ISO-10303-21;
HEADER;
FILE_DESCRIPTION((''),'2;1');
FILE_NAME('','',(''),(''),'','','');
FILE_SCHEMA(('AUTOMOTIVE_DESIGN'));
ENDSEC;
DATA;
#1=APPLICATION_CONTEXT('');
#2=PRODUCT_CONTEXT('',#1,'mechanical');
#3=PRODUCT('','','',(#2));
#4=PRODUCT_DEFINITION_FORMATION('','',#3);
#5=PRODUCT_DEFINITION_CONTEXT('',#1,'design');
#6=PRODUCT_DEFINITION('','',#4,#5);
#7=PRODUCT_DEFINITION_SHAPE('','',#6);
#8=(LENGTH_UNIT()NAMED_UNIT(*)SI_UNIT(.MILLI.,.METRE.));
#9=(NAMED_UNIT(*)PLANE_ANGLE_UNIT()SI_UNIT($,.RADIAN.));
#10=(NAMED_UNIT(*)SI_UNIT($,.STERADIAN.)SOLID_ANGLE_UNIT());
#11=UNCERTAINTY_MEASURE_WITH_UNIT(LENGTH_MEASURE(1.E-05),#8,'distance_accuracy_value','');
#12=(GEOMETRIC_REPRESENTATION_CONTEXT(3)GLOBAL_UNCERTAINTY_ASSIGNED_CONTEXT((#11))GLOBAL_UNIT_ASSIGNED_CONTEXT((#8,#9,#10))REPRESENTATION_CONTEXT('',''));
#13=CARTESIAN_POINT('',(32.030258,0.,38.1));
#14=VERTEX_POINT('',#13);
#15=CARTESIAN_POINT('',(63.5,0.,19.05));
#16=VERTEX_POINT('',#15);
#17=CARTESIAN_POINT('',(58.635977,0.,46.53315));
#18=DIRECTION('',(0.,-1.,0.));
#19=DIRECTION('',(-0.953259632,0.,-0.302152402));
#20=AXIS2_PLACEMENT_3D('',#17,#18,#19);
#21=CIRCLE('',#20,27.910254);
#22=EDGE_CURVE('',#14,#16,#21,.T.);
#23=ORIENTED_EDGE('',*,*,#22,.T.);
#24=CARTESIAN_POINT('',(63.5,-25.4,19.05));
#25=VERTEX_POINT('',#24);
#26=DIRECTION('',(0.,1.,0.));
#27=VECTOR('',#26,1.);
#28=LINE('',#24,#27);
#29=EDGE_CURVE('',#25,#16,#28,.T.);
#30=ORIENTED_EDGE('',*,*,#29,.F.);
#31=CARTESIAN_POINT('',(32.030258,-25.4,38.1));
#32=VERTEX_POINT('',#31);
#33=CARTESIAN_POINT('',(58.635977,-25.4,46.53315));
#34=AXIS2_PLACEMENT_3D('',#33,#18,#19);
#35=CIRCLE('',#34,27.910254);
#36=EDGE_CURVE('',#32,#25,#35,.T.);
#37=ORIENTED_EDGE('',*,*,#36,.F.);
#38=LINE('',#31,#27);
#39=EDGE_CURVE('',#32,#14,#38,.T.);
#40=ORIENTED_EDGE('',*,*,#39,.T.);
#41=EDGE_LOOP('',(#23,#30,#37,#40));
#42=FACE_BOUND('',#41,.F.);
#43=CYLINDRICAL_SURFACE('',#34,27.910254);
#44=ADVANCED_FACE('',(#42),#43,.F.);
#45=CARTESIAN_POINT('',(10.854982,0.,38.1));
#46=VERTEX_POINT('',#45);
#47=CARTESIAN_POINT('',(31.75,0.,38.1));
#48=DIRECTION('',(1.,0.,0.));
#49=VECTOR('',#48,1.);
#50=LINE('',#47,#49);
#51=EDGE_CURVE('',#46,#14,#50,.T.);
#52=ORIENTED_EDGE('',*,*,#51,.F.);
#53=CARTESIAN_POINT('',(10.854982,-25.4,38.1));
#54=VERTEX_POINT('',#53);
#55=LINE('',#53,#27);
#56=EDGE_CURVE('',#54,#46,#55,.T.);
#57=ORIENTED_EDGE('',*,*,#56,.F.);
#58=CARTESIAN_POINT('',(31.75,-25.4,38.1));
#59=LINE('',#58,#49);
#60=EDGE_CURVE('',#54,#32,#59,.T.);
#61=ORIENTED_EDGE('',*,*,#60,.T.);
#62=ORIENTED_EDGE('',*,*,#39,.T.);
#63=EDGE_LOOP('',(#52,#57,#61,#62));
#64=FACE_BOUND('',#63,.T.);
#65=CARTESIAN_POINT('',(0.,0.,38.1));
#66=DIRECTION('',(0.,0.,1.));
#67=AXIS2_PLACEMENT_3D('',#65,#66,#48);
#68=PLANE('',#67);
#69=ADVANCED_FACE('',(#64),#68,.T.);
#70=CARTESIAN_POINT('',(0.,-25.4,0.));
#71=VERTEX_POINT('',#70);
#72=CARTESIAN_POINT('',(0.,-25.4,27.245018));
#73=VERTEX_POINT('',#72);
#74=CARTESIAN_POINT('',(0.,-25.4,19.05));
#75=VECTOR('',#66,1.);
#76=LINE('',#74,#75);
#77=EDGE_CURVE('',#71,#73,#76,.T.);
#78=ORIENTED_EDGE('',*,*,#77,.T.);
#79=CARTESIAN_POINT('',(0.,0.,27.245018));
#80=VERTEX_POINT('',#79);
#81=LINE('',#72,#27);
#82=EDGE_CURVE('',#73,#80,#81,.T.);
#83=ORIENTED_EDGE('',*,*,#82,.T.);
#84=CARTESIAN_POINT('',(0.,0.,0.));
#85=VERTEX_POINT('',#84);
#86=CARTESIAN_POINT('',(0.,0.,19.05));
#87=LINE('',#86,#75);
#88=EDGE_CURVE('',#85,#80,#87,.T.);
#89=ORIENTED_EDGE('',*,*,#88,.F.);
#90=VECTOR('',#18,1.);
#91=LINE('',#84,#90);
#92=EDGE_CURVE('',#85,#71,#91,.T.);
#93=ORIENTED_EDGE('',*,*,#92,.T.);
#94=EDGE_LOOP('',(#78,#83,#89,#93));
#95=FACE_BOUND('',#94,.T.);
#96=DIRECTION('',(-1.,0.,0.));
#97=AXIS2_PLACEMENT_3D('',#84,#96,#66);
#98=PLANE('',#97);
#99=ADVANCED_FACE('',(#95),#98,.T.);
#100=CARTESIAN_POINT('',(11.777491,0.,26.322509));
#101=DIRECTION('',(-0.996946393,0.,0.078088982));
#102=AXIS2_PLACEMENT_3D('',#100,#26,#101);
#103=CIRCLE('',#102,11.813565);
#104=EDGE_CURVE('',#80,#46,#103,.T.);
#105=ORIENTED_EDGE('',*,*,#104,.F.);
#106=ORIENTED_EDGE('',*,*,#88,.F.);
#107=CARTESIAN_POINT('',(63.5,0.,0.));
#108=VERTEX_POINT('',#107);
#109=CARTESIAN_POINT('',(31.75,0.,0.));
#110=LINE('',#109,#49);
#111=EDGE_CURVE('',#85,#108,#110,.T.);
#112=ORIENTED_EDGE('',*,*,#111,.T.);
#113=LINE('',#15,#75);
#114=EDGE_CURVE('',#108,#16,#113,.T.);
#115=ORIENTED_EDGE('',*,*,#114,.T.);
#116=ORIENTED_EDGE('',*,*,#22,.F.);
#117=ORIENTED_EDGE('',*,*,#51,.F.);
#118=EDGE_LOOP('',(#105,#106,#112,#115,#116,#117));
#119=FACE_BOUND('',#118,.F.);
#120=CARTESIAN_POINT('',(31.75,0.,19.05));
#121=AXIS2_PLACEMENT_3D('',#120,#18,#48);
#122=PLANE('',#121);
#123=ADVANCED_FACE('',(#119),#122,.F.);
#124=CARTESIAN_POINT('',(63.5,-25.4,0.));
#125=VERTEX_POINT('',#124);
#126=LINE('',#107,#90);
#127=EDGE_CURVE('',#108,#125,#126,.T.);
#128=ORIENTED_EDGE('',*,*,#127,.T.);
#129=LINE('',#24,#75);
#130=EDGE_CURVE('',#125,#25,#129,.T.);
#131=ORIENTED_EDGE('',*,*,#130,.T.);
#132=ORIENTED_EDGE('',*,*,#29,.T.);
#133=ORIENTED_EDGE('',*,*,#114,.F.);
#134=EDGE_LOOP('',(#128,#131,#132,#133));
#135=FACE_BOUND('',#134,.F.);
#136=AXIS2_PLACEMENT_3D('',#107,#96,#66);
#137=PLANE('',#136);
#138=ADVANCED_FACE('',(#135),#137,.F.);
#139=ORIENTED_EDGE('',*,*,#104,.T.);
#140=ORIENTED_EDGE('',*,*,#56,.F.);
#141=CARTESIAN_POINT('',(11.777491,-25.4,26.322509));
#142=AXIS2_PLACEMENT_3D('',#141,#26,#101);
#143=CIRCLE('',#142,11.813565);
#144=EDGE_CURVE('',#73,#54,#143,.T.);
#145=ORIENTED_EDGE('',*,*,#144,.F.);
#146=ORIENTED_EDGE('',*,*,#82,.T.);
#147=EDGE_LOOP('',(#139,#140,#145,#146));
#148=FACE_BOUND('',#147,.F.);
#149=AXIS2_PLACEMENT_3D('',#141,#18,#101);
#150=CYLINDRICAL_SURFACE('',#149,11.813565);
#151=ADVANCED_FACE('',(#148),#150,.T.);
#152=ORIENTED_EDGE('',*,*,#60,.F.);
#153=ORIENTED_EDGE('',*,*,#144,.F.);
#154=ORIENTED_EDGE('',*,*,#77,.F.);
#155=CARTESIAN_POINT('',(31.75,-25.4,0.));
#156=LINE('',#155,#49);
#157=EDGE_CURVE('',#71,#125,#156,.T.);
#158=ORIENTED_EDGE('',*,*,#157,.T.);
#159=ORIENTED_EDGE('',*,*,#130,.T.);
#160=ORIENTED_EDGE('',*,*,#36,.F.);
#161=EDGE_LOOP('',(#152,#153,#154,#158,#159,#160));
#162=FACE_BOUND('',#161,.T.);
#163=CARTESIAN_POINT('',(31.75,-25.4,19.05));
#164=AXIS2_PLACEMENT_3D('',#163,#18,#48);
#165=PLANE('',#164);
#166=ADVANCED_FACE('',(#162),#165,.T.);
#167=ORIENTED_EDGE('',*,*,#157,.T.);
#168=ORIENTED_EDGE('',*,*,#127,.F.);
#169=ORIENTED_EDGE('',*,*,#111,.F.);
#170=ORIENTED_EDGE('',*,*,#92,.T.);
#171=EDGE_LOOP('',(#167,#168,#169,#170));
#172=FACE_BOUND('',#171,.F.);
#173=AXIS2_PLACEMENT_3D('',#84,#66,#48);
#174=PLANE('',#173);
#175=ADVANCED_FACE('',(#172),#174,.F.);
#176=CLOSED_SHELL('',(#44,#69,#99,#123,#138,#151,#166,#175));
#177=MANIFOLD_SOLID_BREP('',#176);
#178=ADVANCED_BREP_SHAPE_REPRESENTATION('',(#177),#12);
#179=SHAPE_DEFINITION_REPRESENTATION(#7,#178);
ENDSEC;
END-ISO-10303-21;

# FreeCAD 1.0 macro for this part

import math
import FreeCAD as App
import Part
import Sketcher

V = App.Vector
Q = App.Units.Quantity

doc = App.newDocument("Part")
body = doc.addObject("PartDesign::Body", "Body")

# Sketch on XZ plane
sketch1 = body.newObject("Sketcher::SketchObject", "Sketch")
sketch1.AttachmentSupport = (doc.getObject("XZ_Plane"), [""])
sketch1.MapMode = "FlatFace"
sketch1.addGeometry([
    Part.LineSegment(V(0, 38, 0), V(0, 0, 0)),
    Part.LineSegment(V(0, 0, 0), V(64, 0, 0)),
    Part.LineSegment(V(64, 0, 0), V(64, 38, 0)),
    Part.LineSegment(V(64, 38, 0), V(0, 38, 0)),
], False)
sketch1.addConstraint([
    Sketcher.Constraint("Coincident", 0, 2, 1, 1),
    Sketcher.Constraint("Coincident", 1, 2, 2, 1),
    Sketcher.Constraint("Coincident", 2, 2, 3, 1),
    Sketcher.Constraint("Coincident", 3, 2, 0, 1),
    Sketcher.Constraint("Vertical", 0),
    Sketcher.Constraint("Horizontal", 1),
    Sketcher.Constraint("Vertical", 2),
    Sketcher.Constraint("Horizontal", 3),
    Sketcher.Constraint("Coincident", 0, 2, -1, 1),
    Sketcher.Constraint("DistanceX", 1, 1, 1, 2, Q("2.5 in")),
    Sketcher.Constraint("DistanceY", 0, 2, 0, 1, Q("1.5 in")),
])
pad1 = body.newObject("PartDesign::Pad", "Pad")
pad1.Profile = sketch1
pad1.Length = Q("1 in")

# Sketch on XZ plane
sketch2 = body.newObject("Sketcher::SketchObject", "Sketch001")
sketch2.AttachmentSupport = (doc.getObject("XZ_Plane"), [""])
sketch2.MapMode = "FlatFace"
sketch2.AttachmentOffset = App.Placement(V(0, 0, 1 * 25.4), App.Rotation())
sketch2.addGeometry([
    Part.ArcOfCircle(Part.Circle(V(12, 26, 0), V(0, 0, 1), 12), math.radians(94), math.radians(176)),
    Part.LineSegment(V(11, 38, 0), V(0, 38, 0)),
    Part.LineSegment(V(0, 38, 0), V(0, 27, 0)),
], False)
sketch2.addConstraint([
    Sketcher.Constraint("Coincident", 0, 1, 1, 1),
    Sketcher.Constraint("Coincident", 1, 2, 2, 1),
    Sketcher.Constraint("Coincident", 2, 2, 0, 2),
    Sketcher.Constraint("Horizontal", 1),
    Sketcher.Constraint("Vertical", 2),
    Sketcher.Constraint("PointOnObject", 1, 2, -2),
    Sketcher.Constraint("Equal", 1, 2),
    Sketcher.Constraint("DistanceY", -1, 1, 0, 1, Q("1.5 in")),
    Sketcher.Constraint("Radius", 0, Q("11.813565 mm")),
    Sketcher.Constraint("DistanceX", 1, 2, 1, 1, Q("10.854982 mm")),
])
pocket1 = body.newObject("PartDesign::Pocket", "Pocket")
pocket1.Profile = sketch2
pocket1.Length = Q("1 in")

# Sketch on XZ plane
sketch3 = body.newObject("Sketcher::SketchObject", "Sketch002")
sketch3.AttachmentSupport = (doc.getObject("XZ_Plane"), [""])
sketch3.MapMode = "FlatFace"
sketch3.AttachmentOffset = App.Placement(V(0, 0, 1 * 25.4), App.Rotation())
sketch3.addGeometry([
    Part.LineSegment(V(64, 19, 0), V(64, 38, 0)),
    Part.LineSegment(V(64, 38, 0), V(32, 38, 0)),
    Part.ArcOfCircle(Part.Circle(V(59, 47, 0), V(0, 0, 1), 28), math.radians(-162), math.radians(-80)),
], False)
sketch3.addConstraint([
    Sketcher.Constraint("Coincident", 0, 2, 1, 1),
    Sketcher.Constraint("Coincident", 1, 2, 2, 1),
    Sketcher.Constraint("Coincident", 2, 2, 0, 1),
    Sketcher.Constraint("Vertical", 0),
    Sketcher.Constraint("Horizontal", 1),
    Sketcher.Constraint("DistanceY", 0, 1, 0, 2, Q("0.75 in")),
    Sketcher.Constraint("DistanceX", -1, 1, 0, 2, Q("2.5 in")),
    Sketcher.Constraint("DistanceY", -1, 1, 0, 2, Q("1.5 in")),
    Sketcher.Constraint("Radius", 2, Q("27.910254 mm")),
    Sketcher.Constraint("DistanceX", 1, 2, 1, 1, Q("31.469742 mm")),
])
pocket2 = body.newObject("PartDesign::Pocket", "Pocket001")
pocket2.Profile = sketch3
pocket2.Length = Q("1 in")

doc.recompute()
